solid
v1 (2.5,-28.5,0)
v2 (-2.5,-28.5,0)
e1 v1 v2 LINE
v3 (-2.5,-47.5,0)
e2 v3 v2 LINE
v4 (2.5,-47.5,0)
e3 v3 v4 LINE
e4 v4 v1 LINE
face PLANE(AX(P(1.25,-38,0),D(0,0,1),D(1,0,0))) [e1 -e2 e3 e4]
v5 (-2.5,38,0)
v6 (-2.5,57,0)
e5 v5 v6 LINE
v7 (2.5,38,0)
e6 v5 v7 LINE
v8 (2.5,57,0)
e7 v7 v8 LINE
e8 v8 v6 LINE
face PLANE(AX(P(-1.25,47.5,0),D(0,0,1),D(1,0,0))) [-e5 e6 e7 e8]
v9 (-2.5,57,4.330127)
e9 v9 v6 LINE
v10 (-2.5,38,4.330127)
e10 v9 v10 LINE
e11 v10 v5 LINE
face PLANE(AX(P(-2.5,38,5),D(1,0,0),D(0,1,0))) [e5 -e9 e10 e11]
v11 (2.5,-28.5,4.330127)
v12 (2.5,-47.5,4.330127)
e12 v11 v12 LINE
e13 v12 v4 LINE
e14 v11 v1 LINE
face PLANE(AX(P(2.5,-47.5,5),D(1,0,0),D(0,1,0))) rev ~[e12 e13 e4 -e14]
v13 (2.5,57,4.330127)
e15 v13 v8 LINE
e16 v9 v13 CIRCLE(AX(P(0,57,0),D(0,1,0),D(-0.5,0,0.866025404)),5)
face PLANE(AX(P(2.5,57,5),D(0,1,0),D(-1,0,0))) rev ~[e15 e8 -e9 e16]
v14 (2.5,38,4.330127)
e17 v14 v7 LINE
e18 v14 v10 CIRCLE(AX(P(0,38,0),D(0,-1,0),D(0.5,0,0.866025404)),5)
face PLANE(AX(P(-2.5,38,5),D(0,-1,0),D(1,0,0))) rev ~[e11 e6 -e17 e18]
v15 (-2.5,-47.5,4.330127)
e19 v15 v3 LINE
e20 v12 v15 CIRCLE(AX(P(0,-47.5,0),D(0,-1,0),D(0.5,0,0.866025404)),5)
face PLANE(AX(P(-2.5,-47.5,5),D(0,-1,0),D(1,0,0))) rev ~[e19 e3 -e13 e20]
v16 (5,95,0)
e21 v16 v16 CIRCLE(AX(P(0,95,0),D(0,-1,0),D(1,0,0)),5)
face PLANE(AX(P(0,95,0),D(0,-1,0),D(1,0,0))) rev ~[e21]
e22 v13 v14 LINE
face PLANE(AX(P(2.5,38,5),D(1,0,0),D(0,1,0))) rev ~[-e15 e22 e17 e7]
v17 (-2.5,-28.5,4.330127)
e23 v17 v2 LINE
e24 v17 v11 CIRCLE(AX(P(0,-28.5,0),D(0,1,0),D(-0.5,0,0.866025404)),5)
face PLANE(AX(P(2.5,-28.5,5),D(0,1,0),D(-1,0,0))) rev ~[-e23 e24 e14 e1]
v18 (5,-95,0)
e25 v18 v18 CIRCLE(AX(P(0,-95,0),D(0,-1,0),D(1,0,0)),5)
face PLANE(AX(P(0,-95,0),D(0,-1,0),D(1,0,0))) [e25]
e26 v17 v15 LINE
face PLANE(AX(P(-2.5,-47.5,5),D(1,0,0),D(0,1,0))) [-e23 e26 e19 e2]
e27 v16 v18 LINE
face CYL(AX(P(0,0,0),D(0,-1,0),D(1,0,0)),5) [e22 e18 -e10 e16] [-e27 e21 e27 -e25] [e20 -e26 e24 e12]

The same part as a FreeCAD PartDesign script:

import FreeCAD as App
import Part
import Sketcher
from FreeCAD import Vector
Q = App.Units.Quantity


def add_polygon(sketch, points):
    """Adds a closed chain of lines whose ends are joined by coincident constraints."""
    first, n = sketch.GeometryCount, len(points)
    for a, b in zip(points, points[1:] + points[:1]):
        sketch.addGeometry(Part.LineSegment(App.Vector(*a, 0), App.Vector(*b, 0)), False)
    for i in range(n):
        sketch.addConstraint(Sketcher.Constraint("Coincident", first + i, 2, first + (i + 1) % n, 1))

doc = App.newDocument("Part")
body = doc.addObject("PartDesign::Body", "Body")

sketch1 = body.newObject("Sketcher::SketchObject", "Sketch")
sketch1.AttachmentSupport = (doc.getObject("XZ_Plane"), [""])
sketch1.MapMode = "FlatFace"
sketch1.addGeometry(Part.Circle(Vector(0, 0, 0), Vector(0, 0, 1), 5), False)
sketch1.addConstraint(Sketcher.Constraint("Coincident", 0, 3, -1, 1))
sketch1.addConstraint(Sketcher.Constraint("Diameter", 0, Q("10 mm")))
pad1 = body.newObject("PartDesign::Pad", "Pad")
pad1.Profile = sketch1
pad1.Length = 190
pad1.Midplane = True

sketch2 = body.newObject("Sketcher::SketchObject", "Sketch001")
sketch2.AttachmentSupport = (doc.getObject("XY_Plane"), [""])
sketch2.MapMode = "FlatFace"
sketch2.AttachmentOffset = App.Placement(Vector(0, 0, 5), App.Rotation())
add_polygon(sketch2, [(2.5, -47.5), (2.5, -28.5), (-2.5, -28.5), (-2.5, -47.5)])
add_polygon(sketch2, [(-2.5, 57), (-2.5, 38), (2.5, 38), (2.5, 57)])
sketch2.addConstraint(Sketcher.Constraint("Vertical", 0))
sketch2.addConstraint(Sketcher.Constraint("Horizontal", 1))
sketch2.addConstraint(Sketcher.Constraint("Vertical", 2))
sketch2.addConstraint(Sketcher.Constraint("Horizontal", 3))
sketch2.addConstraint(Sketcher.Constraint("Vertical", 4))
sketch2.addConstraint(Sketcher.Constraint("Horizontal", 5))
sketch2.addConstraint(Sketcher.Constraint("Vertical", 6))
sketch2.addConstraint(Sketcher.Constraint("Horizontal", 7))
sketch2.addConstraint(Sketcher.Constraint("Vertical", 2, 2, 4, 2))
sketch2.addConstraint(Sketcher.Constraint("Vertical", 3, 2, 5, 2))
sketch2.addConstraint(Sketcher.Constraint("Equal", 2, 4))
sketch2.addConstraint(Sketcher.Constraint("DistanceX", 1, 2, 1, 1, Q("5 mm")))
sketch2.addConstraint(Sketcher.Constraint("DistanceY", 0, 1, 0, 2, Q("19 mm")))
sketch2.addConstraint(Sketcher.Constraint("DistanceY", -1, 1, 4, 2, Q("38 mm")))
sketch2.addConstraint(Sketcher.Constraint("DistanceX", -1, 1, 0, 2, Q("2.5 mm")))
sketch2.addConstraint(Sketcher.Constraint("DistanceY", 0, 2, -1, 1, Q("28.5 mm")))
pocket1 = body.newObject("PartDesign::Pocket", "Pocket")
pocket1.Profile = sketch2
pocket1.Length = 5

doc.recompute()
